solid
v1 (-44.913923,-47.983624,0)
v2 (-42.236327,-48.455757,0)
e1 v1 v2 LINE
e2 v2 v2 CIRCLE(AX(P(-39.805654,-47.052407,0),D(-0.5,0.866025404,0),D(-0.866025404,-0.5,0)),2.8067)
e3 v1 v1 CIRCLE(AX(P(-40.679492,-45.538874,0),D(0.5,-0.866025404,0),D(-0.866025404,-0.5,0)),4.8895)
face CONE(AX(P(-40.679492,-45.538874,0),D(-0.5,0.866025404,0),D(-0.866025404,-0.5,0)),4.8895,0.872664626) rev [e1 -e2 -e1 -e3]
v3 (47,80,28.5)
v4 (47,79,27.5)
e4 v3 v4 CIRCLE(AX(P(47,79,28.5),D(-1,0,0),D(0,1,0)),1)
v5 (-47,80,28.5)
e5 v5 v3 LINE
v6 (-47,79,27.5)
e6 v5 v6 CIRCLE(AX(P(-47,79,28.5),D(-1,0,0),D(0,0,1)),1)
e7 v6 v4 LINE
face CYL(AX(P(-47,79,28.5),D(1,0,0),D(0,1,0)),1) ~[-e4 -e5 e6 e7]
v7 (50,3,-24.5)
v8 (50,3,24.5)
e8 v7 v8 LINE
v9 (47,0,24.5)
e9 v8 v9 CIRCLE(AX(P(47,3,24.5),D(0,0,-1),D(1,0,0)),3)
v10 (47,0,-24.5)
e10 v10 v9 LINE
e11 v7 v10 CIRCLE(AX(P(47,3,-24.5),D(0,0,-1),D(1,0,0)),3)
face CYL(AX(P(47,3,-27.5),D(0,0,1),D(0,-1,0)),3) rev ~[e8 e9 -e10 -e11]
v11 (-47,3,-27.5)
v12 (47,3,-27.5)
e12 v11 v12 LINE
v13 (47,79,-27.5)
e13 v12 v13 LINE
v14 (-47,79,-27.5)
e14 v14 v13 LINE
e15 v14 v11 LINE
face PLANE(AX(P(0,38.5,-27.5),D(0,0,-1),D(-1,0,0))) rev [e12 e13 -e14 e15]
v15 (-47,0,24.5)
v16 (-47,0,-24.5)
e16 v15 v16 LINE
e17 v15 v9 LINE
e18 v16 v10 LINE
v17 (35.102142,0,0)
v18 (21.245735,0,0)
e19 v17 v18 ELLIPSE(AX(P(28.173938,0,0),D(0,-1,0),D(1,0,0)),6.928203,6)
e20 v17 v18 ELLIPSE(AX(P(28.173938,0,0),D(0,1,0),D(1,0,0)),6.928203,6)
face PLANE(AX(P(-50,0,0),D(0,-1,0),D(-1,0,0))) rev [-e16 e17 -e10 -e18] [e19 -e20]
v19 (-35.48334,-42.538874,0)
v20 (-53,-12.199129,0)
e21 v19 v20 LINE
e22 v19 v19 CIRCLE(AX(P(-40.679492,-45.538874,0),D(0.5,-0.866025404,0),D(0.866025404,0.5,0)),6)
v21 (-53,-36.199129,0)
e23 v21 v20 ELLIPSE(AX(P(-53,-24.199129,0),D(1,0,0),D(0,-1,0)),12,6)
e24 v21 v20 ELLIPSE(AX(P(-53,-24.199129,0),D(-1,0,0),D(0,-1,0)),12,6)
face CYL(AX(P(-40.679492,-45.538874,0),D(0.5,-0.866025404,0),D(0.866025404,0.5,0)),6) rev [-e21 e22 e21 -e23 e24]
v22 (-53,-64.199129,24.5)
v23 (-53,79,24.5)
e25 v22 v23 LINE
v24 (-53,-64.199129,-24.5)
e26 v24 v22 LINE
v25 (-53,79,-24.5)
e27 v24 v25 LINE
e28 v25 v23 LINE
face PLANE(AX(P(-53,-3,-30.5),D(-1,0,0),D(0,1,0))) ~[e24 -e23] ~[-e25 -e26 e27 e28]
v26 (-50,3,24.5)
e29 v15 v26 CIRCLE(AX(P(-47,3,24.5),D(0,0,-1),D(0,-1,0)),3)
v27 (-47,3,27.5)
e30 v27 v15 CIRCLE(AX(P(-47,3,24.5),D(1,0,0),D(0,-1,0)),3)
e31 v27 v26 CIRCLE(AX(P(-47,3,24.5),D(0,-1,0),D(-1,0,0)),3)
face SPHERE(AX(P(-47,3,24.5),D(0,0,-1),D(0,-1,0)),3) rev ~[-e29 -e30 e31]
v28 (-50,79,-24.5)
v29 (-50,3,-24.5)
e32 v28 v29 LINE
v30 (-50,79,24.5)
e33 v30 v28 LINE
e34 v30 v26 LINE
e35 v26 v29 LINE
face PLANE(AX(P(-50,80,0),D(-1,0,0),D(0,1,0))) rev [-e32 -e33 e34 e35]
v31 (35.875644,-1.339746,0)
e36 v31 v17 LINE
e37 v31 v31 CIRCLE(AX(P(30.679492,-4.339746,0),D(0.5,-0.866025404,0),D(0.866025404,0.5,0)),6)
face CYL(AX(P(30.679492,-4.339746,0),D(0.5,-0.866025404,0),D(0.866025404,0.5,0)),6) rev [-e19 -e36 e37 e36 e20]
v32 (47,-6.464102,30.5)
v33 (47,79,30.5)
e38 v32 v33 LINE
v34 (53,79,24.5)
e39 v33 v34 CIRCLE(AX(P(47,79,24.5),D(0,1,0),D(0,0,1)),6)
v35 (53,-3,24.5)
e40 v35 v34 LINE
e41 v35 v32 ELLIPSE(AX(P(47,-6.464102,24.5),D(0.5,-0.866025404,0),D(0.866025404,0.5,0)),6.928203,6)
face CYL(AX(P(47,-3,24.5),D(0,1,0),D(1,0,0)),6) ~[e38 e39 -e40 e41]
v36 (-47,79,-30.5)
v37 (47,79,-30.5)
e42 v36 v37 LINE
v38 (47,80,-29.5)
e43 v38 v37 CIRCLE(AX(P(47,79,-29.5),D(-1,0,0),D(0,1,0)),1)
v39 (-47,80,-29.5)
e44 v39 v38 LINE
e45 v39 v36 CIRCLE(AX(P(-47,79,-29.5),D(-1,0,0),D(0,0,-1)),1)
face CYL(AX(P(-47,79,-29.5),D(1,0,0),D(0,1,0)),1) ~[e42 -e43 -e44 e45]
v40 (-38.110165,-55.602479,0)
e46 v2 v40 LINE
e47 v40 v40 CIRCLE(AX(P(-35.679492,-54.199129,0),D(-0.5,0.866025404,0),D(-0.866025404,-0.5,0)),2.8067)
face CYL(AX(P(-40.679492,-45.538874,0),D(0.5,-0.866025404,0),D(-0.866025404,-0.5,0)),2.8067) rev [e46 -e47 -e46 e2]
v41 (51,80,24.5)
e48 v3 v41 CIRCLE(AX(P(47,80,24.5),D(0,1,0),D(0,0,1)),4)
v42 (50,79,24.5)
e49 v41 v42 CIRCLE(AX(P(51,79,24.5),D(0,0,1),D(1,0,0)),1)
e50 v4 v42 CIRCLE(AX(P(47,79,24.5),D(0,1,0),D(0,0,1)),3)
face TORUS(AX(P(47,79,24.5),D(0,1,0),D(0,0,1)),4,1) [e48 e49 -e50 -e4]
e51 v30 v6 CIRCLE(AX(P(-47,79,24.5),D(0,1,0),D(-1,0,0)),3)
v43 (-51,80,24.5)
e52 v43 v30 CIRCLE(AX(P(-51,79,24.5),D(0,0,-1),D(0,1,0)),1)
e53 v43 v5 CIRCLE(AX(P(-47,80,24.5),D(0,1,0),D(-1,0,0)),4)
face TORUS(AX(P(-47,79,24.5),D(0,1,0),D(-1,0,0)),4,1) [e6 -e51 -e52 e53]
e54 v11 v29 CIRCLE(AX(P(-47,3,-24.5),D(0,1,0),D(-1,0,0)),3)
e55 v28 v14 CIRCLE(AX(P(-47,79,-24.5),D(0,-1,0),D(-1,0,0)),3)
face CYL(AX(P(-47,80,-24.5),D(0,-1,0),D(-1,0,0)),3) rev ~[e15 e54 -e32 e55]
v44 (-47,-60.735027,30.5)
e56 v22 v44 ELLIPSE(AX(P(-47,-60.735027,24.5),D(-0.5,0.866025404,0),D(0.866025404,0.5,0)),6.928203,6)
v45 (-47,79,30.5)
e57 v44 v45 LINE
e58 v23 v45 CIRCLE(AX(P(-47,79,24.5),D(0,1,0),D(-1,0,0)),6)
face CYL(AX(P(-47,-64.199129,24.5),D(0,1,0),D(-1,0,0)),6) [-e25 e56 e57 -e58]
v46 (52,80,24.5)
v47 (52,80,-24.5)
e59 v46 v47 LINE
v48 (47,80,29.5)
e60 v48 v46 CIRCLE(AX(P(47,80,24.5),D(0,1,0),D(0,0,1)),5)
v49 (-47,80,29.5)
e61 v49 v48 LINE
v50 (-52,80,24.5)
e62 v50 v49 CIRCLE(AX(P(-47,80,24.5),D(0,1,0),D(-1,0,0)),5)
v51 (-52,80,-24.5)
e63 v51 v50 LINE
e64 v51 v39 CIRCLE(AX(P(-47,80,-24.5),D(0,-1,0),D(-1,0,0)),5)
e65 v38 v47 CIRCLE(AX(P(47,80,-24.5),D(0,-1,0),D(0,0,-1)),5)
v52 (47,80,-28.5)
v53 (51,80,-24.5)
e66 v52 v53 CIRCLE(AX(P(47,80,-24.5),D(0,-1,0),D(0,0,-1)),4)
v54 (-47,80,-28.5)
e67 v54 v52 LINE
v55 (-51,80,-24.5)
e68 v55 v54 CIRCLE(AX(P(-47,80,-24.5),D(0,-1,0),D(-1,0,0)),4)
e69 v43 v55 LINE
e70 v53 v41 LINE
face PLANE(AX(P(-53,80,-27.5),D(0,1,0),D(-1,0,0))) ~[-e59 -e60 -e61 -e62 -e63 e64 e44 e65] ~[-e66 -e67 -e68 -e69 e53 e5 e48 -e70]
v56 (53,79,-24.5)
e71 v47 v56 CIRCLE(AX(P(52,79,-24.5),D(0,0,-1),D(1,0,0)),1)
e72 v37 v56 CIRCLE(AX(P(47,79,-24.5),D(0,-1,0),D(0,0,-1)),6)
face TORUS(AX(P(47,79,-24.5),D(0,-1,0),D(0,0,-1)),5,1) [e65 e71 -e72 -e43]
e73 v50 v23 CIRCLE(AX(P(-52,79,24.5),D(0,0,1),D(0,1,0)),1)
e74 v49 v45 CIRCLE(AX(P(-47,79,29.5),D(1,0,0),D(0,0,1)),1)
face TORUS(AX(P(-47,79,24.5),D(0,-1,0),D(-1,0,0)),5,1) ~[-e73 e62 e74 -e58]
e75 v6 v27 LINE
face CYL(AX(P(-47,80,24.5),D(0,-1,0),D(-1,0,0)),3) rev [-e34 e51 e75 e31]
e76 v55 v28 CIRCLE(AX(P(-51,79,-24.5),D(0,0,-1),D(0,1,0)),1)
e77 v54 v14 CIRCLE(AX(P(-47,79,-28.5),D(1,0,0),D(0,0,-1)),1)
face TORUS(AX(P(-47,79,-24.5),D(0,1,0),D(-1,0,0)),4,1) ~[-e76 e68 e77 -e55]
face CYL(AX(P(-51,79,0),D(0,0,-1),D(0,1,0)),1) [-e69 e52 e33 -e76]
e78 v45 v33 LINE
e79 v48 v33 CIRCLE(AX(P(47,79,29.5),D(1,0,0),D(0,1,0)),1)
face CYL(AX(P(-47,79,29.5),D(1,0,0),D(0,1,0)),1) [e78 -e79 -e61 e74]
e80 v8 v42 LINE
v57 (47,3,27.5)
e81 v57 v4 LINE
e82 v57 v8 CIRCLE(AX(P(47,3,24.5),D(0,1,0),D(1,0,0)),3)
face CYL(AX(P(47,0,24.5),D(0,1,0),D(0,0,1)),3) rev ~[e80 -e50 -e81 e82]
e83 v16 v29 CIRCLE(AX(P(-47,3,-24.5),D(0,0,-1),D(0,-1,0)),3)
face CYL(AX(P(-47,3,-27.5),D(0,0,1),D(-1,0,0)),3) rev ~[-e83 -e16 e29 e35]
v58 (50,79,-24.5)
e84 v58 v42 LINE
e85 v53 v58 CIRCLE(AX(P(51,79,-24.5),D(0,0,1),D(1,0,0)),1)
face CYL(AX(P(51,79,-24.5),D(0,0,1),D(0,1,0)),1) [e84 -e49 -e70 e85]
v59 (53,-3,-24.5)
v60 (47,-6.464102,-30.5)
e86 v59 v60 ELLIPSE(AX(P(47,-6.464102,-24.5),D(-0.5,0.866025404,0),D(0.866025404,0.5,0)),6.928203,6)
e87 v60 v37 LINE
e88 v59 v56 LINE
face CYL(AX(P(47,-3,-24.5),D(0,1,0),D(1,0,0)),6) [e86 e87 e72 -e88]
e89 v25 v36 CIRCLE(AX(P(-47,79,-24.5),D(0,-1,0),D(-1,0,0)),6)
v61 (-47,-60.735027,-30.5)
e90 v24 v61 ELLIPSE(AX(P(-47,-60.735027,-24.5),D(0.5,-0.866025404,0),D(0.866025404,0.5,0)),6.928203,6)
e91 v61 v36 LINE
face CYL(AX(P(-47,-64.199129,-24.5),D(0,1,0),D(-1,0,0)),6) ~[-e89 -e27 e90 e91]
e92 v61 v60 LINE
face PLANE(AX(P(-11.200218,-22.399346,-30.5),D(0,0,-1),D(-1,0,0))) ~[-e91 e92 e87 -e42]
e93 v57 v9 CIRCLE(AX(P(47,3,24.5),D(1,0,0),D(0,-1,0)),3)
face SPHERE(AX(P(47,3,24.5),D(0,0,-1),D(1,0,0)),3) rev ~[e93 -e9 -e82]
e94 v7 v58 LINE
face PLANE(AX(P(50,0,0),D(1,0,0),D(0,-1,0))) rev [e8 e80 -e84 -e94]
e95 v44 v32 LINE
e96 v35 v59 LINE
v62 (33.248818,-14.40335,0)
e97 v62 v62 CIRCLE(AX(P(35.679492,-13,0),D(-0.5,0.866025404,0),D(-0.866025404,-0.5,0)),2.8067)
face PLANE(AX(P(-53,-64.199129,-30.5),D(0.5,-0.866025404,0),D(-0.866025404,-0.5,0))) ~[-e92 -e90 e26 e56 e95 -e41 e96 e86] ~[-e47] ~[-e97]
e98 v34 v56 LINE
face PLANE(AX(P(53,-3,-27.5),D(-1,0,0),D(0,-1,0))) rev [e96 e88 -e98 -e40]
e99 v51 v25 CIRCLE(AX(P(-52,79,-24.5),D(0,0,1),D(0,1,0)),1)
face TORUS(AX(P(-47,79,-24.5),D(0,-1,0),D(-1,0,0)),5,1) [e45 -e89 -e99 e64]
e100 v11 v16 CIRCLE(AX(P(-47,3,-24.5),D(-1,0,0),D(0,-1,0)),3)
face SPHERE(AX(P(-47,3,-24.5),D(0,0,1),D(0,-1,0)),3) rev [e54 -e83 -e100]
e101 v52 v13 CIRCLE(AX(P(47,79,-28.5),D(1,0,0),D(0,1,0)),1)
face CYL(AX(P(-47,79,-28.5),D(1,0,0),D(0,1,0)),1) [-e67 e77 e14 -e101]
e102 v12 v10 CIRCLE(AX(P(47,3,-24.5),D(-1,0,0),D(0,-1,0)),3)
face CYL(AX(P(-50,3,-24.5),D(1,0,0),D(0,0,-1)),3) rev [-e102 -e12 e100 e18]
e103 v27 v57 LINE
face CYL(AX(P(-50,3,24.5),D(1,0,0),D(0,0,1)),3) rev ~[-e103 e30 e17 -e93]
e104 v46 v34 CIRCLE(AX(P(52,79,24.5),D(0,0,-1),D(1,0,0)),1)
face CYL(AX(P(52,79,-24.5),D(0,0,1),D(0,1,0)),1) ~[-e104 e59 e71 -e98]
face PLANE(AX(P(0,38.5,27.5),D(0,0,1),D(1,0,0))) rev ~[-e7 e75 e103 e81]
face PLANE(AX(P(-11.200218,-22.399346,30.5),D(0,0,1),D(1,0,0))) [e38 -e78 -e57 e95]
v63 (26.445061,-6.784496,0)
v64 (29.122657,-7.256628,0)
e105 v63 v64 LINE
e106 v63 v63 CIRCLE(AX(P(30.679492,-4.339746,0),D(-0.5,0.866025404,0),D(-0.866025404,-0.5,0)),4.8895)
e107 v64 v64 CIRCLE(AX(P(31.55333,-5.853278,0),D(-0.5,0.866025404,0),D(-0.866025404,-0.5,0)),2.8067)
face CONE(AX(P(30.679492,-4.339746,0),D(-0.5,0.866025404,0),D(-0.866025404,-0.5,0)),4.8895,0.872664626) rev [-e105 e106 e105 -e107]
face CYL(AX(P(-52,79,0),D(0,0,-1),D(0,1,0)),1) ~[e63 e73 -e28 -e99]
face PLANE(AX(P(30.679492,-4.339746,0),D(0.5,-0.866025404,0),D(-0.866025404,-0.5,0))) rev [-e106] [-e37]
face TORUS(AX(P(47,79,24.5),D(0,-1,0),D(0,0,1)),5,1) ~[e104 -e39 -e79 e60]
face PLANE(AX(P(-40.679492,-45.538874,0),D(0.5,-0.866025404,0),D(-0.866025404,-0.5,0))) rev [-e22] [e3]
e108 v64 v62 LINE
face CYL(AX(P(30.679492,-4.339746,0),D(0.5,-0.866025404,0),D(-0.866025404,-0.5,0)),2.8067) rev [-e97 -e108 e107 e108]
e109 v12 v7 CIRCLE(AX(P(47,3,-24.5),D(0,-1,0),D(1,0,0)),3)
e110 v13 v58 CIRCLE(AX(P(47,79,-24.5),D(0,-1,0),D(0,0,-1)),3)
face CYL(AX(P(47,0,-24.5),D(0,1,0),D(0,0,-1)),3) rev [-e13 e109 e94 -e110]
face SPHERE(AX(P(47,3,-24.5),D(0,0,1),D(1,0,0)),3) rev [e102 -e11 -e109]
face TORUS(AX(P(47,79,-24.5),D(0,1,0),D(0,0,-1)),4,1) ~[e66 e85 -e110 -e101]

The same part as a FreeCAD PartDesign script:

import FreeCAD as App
import Part
import Sketcher
from FreeCAD import Vector
Q = App.Units.Quantity


def edges_at(feature, points):
    """Names of the edges that pass closest to the given points."""
    edges = feature.Shape.Edges
    near = lambda p: min(range(len(edges)), key=lambda i: edges[i].distToShape(Part.Vertex(*p))[0])
    return sorted({f"Edge{near(p) + 1}" for p in points})

doc = App.newDocument("Part")
body = doc.addObject("PartDesign::Body", "Body")

# Sketch on XY plane
sketch1 = body.newObject("Sketcher::SketchObject", "Sketch")
sketch1.AttachmentSupport = (doc.getObject("XY_Plane"), [""])
sketch1.MapMode = "FlatFace"
sketch1.addGeometry([
    Part.LineSegment(Vector(-50, 80, 0), Vector(-53, 80, 0)),  # 0
    Part.LineSegment(Vector(-53, 80, 0), Vector(-53, -3, 0)),  # 1
    Part.LineSegment(Vector(-53, -3, 0), Vector(53, -3, 0)),  # 2
    Part.LineSegment(Vector(53, -3, 0), Vector(53, 80, 0)),  # 3
    Part.LineSegment(Vector(53, 80, 0), Vector(50, 80, 0)),  # 4
    Part.LineSegment(Vector(50, 80, 0), Vector(50, 0, 0)),  # 5
    Part.LineSegment(Vector(50, 0, 0), Vector(-50, 0, 0)),  # 6
    Part.LineSegment(Vector(-50, 0, 0), Vector(-50, 80, 0)),  # 7
], False)
sketch1.addConstraint([
    Sketcher.Constraint("Coincident", 0, 2, 1, 1),
    Sketcher.Constraint("Coincident", 1, 2, 2, 1),
    Sketcher.Constraint("Coincident", 2, 2, 3, 1),
    Sketcher.Constraint("Coincident", 3, 2, 4, 1),
    Sketcher.Constraint("Coincident", 4, 2, 5, 1),
    Sketcher.Constraint("Coincident", 5, 2, 6, 1),
    Sketcher.Constraint("Coincident", 6, 2, 7, 1),
    Sketcher.Constraint("Coincident", 7, 2, 0, 1),
    Sketcher.Constraint("Horizontal", 0),
    Sketcher.Constraint("Vertical", 1),
    Sketcher.Constraint("Horizontal", 2),
    Sketcher.Constraint("Vertical", 3),
    Sketcher.Constraint("Horizontal", 4),
    Sketcher.Constraint("Vertical", 5),
    Sketcher.Constraint("Horizontal", 6),
    Sketcher.Constraint("Vertical", 7),
    Sketcher.Constraint("Symmetric", 5, 2, 6, 2, -1, 1),
    Sketcher.Constraint("Symmetric", 0, 2, 3, 2, -2),
    Sketcher.Constraint("DistanceX", 0, 2, 0, 1, 3.0),
    Sketcher.Constraint("DistanceX", 2, 1, 2, 2, 106.0),
    Sketcher.Constraint("DistanceY", 1, 2, 1, 1, 83.0),
    Sketcher.Constraint("DistanceY", 5, 2, 5, 1, 80.0),
])
pad1 = body.newObject("PartDesign::Pad", "Pad")
pad1.Profile = sketch1
pad1.Length = 55
pad1.Midplane = True

# Sketch on XY plane
sketch2 = body.newObject("Sketcher::SketchObject", "Sketch001")
sketch2.AttachmentSupport = (doc.getObject("XY_Plane"), [""])
sketch2.MapMode = "FlatFace"
sketch2.addGeometry([
    Part.LineSegment(Vector(-53, 80, 0), Vector(-53, -3, 0)),
    Part.LineSegment(Vector(-53, -3, 0), Vector(53, -3, 0)),
    Part.LineSegment(Vector(53, -3, 0), Vector(53, 80, 0)),
    Part.LineSegment(Vector(53, 80, 0), Vector(-53, 80, 0)),
], False)
sketch2.addConstraint([
    Sketcher.Constraint("Coincident", 0, 2, 1, 1),
    Sketcher.Constraint("Coincident", 1, 2, 2, 1),
    Sketcher.Constraint("Coincident", 2, 2, 3, 1),
    Sketcher.Constraint("Coincident", 3, 2, 0, 1),
    Sketcher.Constraint("Vertical", 0),
    Sketcher.Constraint("Horizontal", 1),
    Sketcher.Constraint("Vertical", 2),
    Sketcher.Constraint("Horizontal", 3),
    Sketcher.Constraint("DistanceX", 1, 1, 1, 2, 106.0),
    Sketcher.Constraint("DistanceY", 0, 2, 0, 1, 83.0),
    Sketcher.Constraint("DistanceX", 0, 2, -1, 1, 53.0),
    Sketcher.Constraint("DistanceY", 0, 2, -1, 1, 3.0),
])
pocket1 = body.newObject("PartDesign::Pocket", "Pocket")
pocket1.Profile = sketch2
pocket1.Type = "ThroughAll"

# Sketch on XY plane
sketch3 = body.newObject("Sketcher::SketchObject", "Sketch002")
sketch3.AttachmentSupport = (doc.getObject("XY_Plane"), [""])
sketch3.MapMode = "FlatFace"
sketch3.AttachmentOffset = App.Placement(Vector(0, 0, 27.5), App.Rotation())
sketch3.addGeometry([
    Part.LineSegment(Vector(-53, 80, 0), Vector(-53, -3, 0)),
    Part.LineSegment(Vector(-53, -3, 0), Vector(53, -3, 0)),
    Part.LineSegment(Vector(53, -3, 0), Vector(53, 80, 0)),
    Part.LineSegment(Vector(53, 80, 0), Vector(-53, 80, 0)),
], False)
sketch3.addConstraint([
    Sketcher.Constraint("Coincident", 0, 2, 1, 1),
    Sketcher.Constraint("Coincident", 1, 2, 2, 1),
    Sketcher.Constraint("Coincident", 2, 2, 3, 1),
    Sketcher.Constraint("Coincident", 3, 2, 0, 1),
    Sketcher.Constraint("Vertical", 0),
    Sketcher.Constraint("Horizontal", 1),
    Sketcher.Constraint("Vertical", 2),
    Sketcher.Constraint("Horizontal", 3),
    Sketcher.Constraint("DistanceX", 1, 1, 1, 2, 106.0),
    Sketcher.Constraint("DistanceY", 0, 2, 0, 1, 83.0),
    Sketcher.Constraint("DistanceX", 0, 2, -1, 1, 53.0),
    Sketcher.Constraint("DistanceY", 0, 2, -1, 1, 3.0),
])
pad2 = body.newObject("PartDesign::Pad", "Pad001")
pad2.Profile = sketch3
pad2.Length = 3

# Sketch on XY plane
sketch4 = body.newObject("Sketcher::SketchObject", "Sketch003")
sketch4.AttachmentSupport = (doc.getObject("XY_Plane"), [""])
sketch4.MapMode = "FlatFace"
sketch4.AttachmentOffset = App.Placement(Vector(0, 0, 30.5), App.Rotation())
sketch4.addGeometry([
    Part.LineSegment(Vector(-53, -3, 0), Vector(-53, -64, 0)),
    Part.LineSegment(Vector(-53, -64, 0), Vector(53, -3, 0)),
    Part.LineSegment(Vector(53, -3, 0), Vector(-53, -3, 0)),
], False)
sketch4.addConstraint([
    Sketcher.Constraint("Coincident", 0, 2, 1, 1),
    Sketcher.Constraint("Coincident", 1, 2, 2, 1),
    Sketcher.Constraint("Coincident", 2, 2, 0, 1),
    Sketcher.Constraint("Vertical", 0),
    Sketcher.Constraint("Horizontal", 2),
    Sketcher.Constraint("DistanceX", 2, 2, 2, 1, 106.0),
    Sketcher.Constraint("Angle", 1, Q("30 deg")),
    Sketcher.Constraint("DistanceX", 0, 2, -1, 1, 53.0),
    Sketcher.Constraint("DistanceY", 1, 2, -1, 1, 3.0),
])
pad3 = body.newObject("PartDesign::Pad", "Pad002")
pad3.Profile = sketch4
pad3.Length = 30.5
pad3.Reversed = True
doc.recompute()

fillet = body.newObject("PartDesign::Fillet", "Fillet")
fillet.Base = (pad3, edges_at(pad3, [
    (-50, 0, 13.75),
    (50, 0, 13.75),
    (50, 40, 27.5),
    (0, 0, 27.5),
    (-50, 40, 27.5),
]))
fillet.Radius = 3
doc.recompute()

fillet2 = body.newObject("PartDesign::Fillet", "Fillet001")
fillet2.Base = (fillet, edges_at(fillet, [(-53, 7.9, 30.5), (53, 38.5, 30.5)]))
fillet2.Radius = 6
doc.recompute()

fillet3 = body.newObject("PartDesign::Fillet", "Fillet002")
fillet3.Base = (fillet2, edges_at(fillet2, [
    (0, 80, 30.5),
    (-53, 80, 12.25),
    (53, 80, 12.25),
    (51.243, 80, 28.743),
    (-51.243, 80, 28.743),
    (0, 80, 27.5),
    (50, 80, 12.25),
    (-50, 80, 12.25),
    (49.121, 80, 26.621),
    (-49.121, 80, 26.621),
]))
fillet3.Radius = 1

# Sketch on an angled plane
sketch5 = body.newObject("Sketcher::SketchObject", "Sketch004")
sketch5.Placement = App.Placement(Vector(9.549038, -16.539419, 0), App.Rotation(Vector(0.866025404, 0.5, 0), Vector(0, 0, 1), Vector(0.5, -0.866025404, 0), "ZXY"))
sketch5.addGeometry([
    Part.Circle(Vector(-58, 0, 0), Vector(0, 0, 1), 6),
    Part.Circle(Vector(24, 0, 0), Vector(0, 0, 1), 6),
], False)
sketch5.addConstraint([
    Sketcher.Constraint("Equal", 0, 1),
    Sketcher.Constraint("PointOnObject", 0, 3, -1),
    Sketcher.Constraint("PointOnObject", 1, 3, -1),
    Sketcher.Constraint("Diameter", 0, 12.0),
    Sketcher.Constraint("DistanceX", 0, 3, -1, 1, 57.998911),
    Sketcher.Constraint("DistanceX", -1, 1, 1, 3, 24.399346),
])
pocket2 = body.newObject("PartDesign::Pocket", "Pocket001")
pocket2.Profile = sketch5
pocket2.Type = "ThroughAll"

# Sketch on an angled plane
sketch6 = body.newObject("Sketcher::SketchObject", "Sketch005")
sketch6.Placement = App.Placement(Vector(9.549038, -16.539419, 0), App.Rotation(Vector(0.866025404, 0.5, 0), Vector(0, 0, -1), Vector(-0.5, 0.866025404, 0), "ZXY"))
sketch6.addGeometry([
    Part.Circle(Vector(-58, 0, 0), Vector(0, 0, 1), 2.8),
    Part.Circle(Vector(24.4, 0, 0), Vector(0, 0, 1), 2.8),
], False)
sketch6.addConstraint([
    Sketcher.Constraint("Equal", 0, 1),
    Sketcher.Constraint("PointOnObject", 0, 3, -1),
    Sketcher.Constraint("PointOnObject", 1, 3, -1),
    Sketcher.Constraint("Diameter", 0, 5.6134),
    Sketcher.Constraint("DistanceX", 0, 3, -1, 1, 57.998911),
    Sketcher.Constraint("DistanceX", -1, 1, 1, 3, 24.399346),
])
doc.recompute()
hole = body.newObject("PartDesign::Hole", "Hole")
hole.Profile = sketch6
hole.ThreadType = "None"
hole.Diameter = 5.6134
hole.DepthType = "ThroughAll"
hole.HoleCutType = "Countersink"
hole.HoleCutDiameter = 9.779
hole.HoleCutCountersinkAngle = 100
body2 = doc.addObject("PartDesign::Body", "Body001")
doc.recompute()

body2.BaseFeature = body
doc.recompute()

mirroring = doc.addObject("Part::Mirroring", "Mirroring")
mirroring.Source = body
mirroring.Base = Vector(0, 0, 0)
mirroring.Normal = Vector(0, 0, 1)
body3 = doc.addObject("PartDesign::Body", "Body002")
body3.BaseFeature = mirroring
boolean = body2.newObject("PartDesign::Boolean", "Boolean")
boolean.Type = "Fuse"
boolean.addObjects([body3])
doc.recompute()
mirroring.Visibility = False

doc.recompute()
